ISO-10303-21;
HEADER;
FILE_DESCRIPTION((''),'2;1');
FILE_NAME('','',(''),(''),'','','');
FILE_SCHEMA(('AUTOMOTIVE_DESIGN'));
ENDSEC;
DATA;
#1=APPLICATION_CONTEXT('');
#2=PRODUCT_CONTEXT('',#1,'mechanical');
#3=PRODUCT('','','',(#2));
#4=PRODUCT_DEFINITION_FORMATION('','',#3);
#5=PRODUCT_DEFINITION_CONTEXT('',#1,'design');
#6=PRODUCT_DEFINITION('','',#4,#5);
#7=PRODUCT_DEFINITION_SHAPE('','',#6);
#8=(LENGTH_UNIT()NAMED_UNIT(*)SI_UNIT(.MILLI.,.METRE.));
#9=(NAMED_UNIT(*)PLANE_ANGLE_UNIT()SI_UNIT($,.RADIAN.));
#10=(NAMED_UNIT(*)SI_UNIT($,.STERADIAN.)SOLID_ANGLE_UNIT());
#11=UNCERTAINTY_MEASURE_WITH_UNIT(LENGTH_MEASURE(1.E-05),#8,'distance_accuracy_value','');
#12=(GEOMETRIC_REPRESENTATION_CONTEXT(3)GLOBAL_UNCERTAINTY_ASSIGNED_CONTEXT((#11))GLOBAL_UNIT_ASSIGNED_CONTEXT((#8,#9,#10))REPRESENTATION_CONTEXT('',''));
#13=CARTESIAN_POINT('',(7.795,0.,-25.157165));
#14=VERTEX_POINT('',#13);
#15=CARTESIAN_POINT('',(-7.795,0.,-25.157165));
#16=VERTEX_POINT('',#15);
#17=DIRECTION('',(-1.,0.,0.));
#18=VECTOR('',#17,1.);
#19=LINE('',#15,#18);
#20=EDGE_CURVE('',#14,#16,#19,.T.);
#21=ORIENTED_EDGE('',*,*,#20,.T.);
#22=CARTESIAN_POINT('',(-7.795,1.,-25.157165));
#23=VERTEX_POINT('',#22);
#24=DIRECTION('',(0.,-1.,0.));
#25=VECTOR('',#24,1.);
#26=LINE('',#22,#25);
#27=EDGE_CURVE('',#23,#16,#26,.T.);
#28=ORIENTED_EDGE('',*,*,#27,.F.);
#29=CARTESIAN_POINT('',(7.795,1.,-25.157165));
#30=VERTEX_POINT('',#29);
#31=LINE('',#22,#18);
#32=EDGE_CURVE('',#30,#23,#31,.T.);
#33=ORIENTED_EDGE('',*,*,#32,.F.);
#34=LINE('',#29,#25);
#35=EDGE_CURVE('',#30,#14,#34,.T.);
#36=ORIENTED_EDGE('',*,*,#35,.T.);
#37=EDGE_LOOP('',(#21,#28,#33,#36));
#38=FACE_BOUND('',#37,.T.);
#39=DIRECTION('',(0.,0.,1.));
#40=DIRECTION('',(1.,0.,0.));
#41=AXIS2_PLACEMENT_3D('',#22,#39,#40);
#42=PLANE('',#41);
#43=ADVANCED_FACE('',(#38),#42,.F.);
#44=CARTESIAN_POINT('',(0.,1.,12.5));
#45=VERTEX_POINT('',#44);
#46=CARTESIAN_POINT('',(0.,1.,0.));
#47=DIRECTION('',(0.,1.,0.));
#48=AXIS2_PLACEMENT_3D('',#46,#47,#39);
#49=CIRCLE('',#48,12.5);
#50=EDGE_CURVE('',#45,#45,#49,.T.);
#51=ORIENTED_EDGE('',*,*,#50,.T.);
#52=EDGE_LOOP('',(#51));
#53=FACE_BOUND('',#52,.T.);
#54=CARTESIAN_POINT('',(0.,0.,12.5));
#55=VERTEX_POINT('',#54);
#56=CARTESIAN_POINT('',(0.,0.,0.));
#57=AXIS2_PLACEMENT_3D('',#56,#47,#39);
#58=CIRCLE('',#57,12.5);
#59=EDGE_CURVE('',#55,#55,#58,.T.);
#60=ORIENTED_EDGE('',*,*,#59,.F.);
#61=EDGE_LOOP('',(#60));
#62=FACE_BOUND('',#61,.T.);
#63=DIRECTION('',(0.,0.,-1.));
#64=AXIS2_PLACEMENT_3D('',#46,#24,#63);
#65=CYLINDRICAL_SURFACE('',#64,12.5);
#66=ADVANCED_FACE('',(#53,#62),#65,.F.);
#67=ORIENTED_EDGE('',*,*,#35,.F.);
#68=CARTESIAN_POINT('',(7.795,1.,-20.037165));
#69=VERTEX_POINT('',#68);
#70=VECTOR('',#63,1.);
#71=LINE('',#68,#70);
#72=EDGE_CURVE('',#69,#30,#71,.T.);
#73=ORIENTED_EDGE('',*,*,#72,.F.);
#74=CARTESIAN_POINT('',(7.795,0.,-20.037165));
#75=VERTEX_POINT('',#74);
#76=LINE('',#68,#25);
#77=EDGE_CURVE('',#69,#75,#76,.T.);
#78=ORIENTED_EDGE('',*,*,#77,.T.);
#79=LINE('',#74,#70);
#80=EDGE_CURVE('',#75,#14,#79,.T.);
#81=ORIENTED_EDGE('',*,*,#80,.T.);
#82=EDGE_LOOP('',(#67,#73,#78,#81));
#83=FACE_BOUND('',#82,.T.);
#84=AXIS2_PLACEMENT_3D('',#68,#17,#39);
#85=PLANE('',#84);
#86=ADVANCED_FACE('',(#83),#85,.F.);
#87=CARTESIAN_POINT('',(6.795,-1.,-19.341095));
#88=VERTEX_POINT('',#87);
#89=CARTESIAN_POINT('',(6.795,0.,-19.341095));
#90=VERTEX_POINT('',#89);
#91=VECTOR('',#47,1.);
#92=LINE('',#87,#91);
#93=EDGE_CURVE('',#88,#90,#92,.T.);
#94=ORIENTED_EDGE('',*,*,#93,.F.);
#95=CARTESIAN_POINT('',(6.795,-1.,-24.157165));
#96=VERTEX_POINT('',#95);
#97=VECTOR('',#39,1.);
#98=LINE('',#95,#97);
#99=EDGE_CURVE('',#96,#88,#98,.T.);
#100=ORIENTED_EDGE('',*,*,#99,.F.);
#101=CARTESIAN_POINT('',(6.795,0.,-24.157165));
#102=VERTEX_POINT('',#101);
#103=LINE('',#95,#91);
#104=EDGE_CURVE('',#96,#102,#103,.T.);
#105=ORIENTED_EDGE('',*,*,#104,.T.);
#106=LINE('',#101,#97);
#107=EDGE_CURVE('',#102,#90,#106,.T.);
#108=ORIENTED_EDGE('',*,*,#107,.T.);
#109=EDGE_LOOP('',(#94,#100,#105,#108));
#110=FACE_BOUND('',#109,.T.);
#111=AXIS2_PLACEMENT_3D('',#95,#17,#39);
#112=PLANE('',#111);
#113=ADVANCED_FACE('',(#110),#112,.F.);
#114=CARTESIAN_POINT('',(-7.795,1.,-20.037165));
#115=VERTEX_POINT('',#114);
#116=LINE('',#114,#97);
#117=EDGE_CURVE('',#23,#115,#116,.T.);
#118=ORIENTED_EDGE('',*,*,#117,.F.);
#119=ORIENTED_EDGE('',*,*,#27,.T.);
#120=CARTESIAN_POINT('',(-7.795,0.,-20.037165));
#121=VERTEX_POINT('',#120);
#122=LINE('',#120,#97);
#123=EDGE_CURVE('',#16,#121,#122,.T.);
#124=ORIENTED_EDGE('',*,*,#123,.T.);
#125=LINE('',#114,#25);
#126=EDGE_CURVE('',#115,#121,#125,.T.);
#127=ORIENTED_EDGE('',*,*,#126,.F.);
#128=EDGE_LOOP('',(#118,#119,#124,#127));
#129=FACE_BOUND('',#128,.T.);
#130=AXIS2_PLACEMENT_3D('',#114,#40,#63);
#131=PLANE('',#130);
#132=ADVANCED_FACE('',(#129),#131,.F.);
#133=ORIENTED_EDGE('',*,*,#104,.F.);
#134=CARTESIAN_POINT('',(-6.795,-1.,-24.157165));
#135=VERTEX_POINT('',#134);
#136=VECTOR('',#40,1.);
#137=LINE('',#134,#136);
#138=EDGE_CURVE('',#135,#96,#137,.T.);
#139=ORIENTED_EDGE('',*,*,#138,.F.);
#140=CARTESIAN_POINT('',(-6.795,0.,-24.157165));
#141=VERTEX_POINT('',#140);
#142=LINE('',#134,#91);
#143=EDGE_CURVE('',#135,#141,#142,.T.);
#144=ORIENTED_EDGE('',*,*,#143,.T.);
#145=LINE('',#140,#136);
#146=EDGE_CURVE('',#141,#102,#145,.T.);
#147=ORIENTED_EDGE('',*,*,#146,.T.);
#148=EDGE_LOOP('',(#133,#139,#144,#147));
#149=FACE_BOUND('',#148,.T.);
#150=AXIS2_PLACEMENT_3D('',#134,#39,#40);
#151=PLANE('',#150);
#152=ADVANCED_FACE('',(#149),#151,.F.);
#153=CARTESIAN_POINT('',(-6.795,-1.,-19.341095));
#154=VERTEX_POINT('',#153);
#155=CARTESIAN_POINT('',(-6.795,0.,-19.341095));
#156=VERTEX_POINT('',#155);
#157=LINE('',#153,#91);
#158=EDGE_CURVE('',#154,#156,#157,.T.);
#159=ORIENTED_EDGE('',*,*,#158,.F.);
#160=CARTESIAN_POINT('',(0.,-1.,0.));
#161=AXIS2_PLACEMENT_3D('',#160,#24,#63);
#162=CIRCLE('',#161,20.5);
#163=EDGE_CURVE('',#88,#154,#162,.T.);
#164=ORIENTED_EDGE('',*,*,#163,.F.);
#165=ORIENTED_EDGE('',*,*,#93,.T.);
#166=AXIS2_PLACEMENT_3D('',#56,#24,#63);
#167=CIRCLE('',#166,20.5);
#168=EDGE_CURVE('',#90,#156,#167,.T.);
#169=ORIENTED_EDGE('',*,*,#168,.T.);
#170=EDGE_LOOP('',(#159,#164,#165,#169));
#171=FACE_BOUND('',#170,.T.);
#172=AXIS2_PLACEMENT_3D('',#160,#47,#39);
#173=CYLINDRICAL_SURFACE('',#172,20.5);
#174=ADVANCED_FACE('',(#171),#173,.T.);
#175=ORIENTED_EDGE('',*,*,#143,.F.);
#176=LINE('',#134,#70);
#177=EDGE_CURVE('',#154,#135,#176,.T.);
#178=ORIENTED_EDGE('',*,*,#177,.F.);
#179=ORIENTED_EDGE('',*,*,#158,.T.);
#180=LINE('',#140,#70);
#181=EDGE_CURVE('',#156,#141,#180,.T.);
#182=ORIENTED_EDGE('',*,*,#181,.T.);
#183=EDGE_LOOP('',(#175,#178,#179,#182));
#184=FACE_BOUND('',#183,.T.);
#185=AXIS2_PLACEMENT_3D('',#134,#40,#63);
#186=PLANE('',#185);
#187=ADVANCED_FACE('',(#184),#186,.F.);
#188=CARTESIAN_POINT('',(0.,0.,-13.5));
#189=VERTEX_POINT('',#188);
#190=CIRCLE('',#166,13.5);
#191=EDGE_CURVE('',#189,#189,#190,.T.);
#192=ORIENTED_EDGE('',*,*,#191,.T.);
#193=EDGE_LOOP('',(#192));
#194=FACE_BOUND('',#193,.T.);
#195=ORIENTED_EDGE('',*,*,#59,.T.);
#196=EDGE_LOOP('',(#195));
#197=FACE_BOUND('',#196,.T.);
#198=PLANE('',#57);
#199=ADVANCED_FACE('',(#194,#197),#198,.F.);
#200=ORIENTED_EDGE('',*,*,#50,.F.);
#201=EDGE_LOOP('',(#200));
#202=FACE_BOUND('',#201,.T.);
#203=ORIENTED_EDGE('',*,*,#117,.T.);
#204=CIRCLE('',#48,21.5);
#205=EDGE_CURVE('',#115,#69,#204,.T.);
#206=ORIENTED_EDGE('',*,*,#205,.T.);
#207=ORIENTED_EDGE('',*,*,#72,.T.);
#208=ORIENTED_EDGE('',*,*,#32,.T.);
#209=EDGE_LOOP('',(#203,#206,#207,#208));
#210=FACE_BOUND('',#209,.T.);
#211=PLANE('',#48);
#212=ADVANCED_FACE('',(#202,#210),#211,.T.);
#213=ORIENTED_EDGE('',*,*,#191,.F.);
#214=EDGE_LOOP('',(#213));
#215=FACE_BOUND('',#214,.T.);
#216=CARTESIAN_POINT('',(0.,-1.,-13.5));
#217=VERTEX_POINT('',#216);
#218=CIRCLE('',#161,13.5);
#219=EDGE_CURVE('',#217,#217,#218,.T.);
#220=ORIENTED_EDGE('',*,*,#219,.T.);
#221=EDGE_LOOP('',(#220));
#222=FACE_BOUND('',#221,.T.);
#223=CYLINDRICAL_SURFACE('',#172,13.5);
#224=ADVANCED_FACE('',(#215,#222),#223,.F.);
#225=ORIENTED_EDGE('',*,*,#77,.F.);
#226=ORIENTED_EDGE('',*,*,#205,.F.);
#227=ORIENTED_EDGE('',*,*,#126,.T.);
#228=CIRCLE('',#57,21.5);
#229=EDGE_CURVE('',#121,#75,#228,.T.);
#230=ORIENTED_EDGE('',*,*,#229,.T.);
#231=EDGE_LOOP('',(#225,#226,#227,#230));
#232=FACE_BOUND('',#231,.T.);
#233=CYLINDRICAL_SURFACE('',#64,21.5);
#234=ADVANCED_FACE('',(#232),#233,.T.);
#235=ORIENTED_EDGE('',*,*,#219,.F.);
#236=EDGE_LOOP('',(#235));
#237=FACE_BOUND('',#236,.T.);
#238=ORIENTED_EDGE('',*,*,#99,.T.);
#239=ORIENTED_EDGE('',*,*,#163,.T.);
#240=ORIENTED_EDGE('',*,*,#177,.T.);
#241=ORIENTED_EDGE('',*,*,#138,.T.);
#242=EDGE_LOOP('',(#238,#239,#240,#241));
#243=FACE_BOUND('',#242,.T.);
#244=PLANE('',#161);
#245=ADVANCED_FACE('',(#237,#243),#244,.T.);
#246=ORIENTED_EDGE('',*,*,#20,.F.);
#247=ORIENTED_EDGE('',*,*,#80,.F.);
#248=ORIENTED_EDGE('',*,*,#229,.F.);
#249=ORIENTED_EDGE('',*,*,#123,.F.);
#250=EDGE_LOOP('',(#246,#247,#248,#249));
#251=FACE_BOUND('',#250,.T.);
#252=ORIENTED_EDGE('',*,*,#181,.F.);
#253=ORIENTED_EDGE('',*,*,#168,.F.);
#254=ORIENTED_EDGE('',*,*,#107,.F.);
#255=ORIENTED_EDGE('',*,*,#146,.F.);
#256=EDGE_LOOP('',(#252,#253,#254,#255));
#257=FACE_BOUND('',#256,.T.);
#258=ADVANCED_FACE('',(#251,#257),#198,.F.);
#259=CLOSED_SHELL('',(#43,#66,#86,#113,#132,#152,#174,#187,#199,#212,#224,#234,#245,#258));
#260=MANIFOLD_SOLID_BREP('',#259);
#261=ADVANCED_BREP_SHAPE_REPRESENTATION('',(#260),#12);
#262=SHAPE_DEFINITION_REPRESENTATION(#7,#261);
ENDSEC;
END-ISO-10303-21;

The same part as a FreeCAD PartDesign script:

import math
import FreeCAD as App
import Part
import Sketcher

V = App.Vector

doc = App.newDocument("Part")
params = doc.addObject("Spreadsheet::Sheet", "Params")
for row, (alias, value) in enumerate([
    ("sketch1_diameter", "25 mm"),
    ("sketch1_radius", "21.5 mm"),
    ("sketch1_width", "15.59 mm"),
    ("sketch1_height", "5.12 mm"),
    ("pad1_length", "1 mm"),
    ("sketch2_diameter", "27 mm"),
    ("sketch2_radius", "20.5 mm"),
    ("sketch2_width", "13.59 mm"),
    ("pad2_length", "1 mm"),
], start=1):
    params.set(f"A{row}", alias)
    params.set(f"B{row}", "=" + value)
    params.setAlias(f"B{row}", alias)

body = doc.addObject("PartDesign::Body", "Body")

# Sketch on XZ plane
sketch1 = body.newObject("Sketcher::SketchObject", "Sketch")
sketch1.AttachmentSupport = (doc.getObject("XZ_Plane"), [""])
sketch1.MapMode = "FlatFace"
sketch1.addGeometry([
    Part.LineSegment(V(-7.795, -25.157165, 0), V(-7.795, -20.037165, 0)),  # 0
    Part.ArcOfCircle(Part.Circle(V(0, 0, 0), V(0, 0, 1), 21.5), math.radians(-68.742617), math.radians(248.742617)),  # 1
    Part.LineSegment(V(7.795, -20.037165, 0), V(7.795, -25.157165, 0)),  # 2
    Part.LineSegment(V(7.795, -25.157165, 0), V(-7.795, -25.157165, 0)),  # 3
    Part.Circle(V(0, 0, 0), V(0, 0, 1), 12.5),  # 4
], False)
sketch1.addConstraint([
    Sketcher.Constraint("Coincident", 0, 2, 1, 2),
    Sketcher.Constraint("Coincident", 1, 1, 2, 1),
    Sketcher.Constraint("Coincident", 2, 2, 3, 1),
    Sketcher.Constraint("Coincident", 3, 2, 0, 1),
    Sketcher.Constraint("Vertical", 0),
    Sketcher.Constraint("Vertical", 2),
    Sketcher.Constraint("Horizontal", 3),
    Sketcher.Constraint("Coincident", 1, 3, -1, 1),
    Sketcher.Constraint("Coincident", 4, 3, -1, 1),
    Sketcher.Constraint("Horizontal", 0, 2, 1, 1),
    Sketcher.Constraint("Diameter", 4, 25.0),
    Sketcher.Constraint("Radius", 1, 21.5),
    Sketcher.Constraint("DistanceX", 3, 2, 3, 1, 15.59),
    Sketcher.Constraint("DistanceY", 0, 1, 0, 2, 5.12),
])
sketch1.setExpression("Constraints[10]", "Params.sketch1_diameter")
sketch1.setExpression("Constraints[11]", "Params.sketch1_radius")
sketch1.setExpression("Constraints[12]", "Params.sketch1_width")
sketch1.setExpression("Constraints[13]", "Params.sketch1_height")
pad1 = body.newObject("PartDesign::Pad", "Pad")
pad1.Profile = sketch1
pad1.setExpression("Length", "Params.pad1_length")
pad1.Reversed = True

# Sketch on XZ plane
sketch2 = body.newObject("Sketcher::SketchObject", "Sketch001")
sketch2.AttachmentSupport = (doc.getObject("XZ_Plane"), [""])
sketch2.MapMode = "FlatFace"
sketch2.addGeometry([
    Part.LineSegment(V(-6.795, -24.157165, 0), V(6.795, -24.157165, 0)),  # 0
    Part.LineSegment(V(6.795, -24.157165, 0), V(6.795, -19.341095, 0)),  # 1
    Part.ArcOfCircle(Part.Circle(V(0, 0, 0), V(0, 0, 1), 20.5), math.radians(-70.642377), math.radians(250.642377)),  # 2
    Part.LineSegment(V(-6.795, -19.341095, 0), V(-6.795, -24.157165, 0)),  # 3
    Part.Circle(V(0, 0, 0), V(0, 0, 1), 13.5),  # 4
], False)
sketch2.addConstraint([
    Sketcher.Constraint("Coincident", 0, 2, 1, 1),
    Sketcher.Constraint("Coincident", 1, 2, 2, 1),
    Sketcher.Constraint("Coincident", 2, 2, 3, 1),
    Sketcher.Constraint("Coincident", 3, 2, 0, 1),
    Sketcher.Constraint("Horizontal", 0),
    Sketcher.Constraint("Vertical", 1),
    Sketcher.Constraint("Vertical", 3),
    Sketcher.Constraint("Coincident", 2, 3, -1, 1),
    Sketcher.Constraint("Coincident", 4, 3, -1, 1),
    Sketcher.Constraint("Horizontal", 1, 2, 2, 2),
    Sketcher.Constraint("Diameter", 4, 27.0),
    Sketcher.Constraint("Radius", 2, 20.5),
    Sketcher.Constraint("DistanceX", 0, 1, 0, 2, 13.59),
    Sketcher.Constraint("DistanceY", 1, 1, 1, 2, 4.816069),
])
sketch2.setExpression("Constraints[10]", "Params.sketch2_diameter")
sketch2.setExpression("Constraints[11]", "Params.sketch2_radius")
sketch2.setExpression("Constraints[12]", "Params.sketch2_width")
pad2 = body.newObject("PartDesign::Pad", "Pad001")
pad2.Profile = sketch2
pad2.setExpression("Length", "Params.pad2_length")

doc.recompute()
